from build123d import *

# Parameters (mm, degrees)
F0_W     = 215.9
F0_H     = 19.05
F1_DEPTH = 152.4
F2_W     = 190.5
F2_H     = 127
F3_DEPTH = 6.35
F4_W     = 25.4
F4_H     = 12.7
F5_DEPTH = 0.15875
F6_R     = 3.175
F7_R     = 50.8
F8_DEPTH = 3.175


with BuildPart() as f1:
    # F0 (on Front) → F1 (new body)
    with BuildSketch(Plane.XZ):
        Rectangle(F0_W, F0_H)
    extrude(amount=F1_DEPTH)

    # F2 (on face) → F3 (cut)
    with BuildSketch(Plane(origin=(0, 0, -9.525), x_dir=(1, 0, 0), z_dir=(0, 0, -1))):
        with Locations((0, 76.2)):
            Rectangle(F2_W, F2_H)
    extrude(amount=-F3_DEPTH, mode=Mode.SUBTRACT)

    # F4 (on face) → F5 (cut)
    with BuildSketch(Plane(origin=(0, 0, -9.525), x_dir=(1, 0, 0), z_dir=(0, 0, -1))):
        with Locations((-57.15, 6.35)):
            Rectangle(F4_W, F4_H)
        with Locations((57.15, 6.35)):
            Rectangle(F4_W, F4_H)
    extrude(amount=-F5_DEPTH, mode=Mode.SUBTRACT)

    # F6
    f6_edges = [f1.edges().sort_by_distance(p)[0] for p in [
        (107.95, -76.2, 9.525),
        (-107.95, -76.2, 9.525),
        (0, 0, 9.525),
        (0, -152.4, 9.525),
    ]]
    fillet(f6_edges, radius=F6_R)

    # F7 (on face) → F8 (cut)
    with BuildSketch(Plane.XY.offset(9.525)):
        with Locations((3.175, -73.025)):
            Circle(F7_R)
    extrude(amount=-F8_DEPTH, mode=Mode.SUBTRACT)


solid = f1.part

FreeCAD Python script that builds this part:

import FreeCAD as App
import Part
import Sketcher

V = App.Vector
Q = App.Units.Quantity


def edges_at(feature, points):
    """Names of the edges that pass closest to the given points."""
    edges = feature.Shape.Edges
    near = lambda p: min(range(len(edges)), key=lambda i: edges[i].distToShape(Part.Vertex(*p))[0])
    return sorted({f"Edge{near(p) + 1}" for p in points})

doc = App.newDocument("Part")
body = doc.addObject("PartDesign::Body", "Body")

# Sketch on XZ plane
sketch1 = body.newObject("Sketcher::SketchObject", "Sketch")
sketch1.AttachmentSupport = (doc.getObject("XZ_Plane"), [""])
sketch1.MapMode = "FlatFace"
sketch1.addGeometry([
    Part.LineSegment(V(-108, 10, 0), V(-108, -10, 0)),
    Part.LineSegment(V(-108, -10, 0), V(108, -10, 0)),
    Part.LineSegment(V(108, -10, 0), V(108, 10, 0)),
    Part.LineSegment(V(108, 10, 0), V(-108, 10, 0)),
], False)
sketch1.addConstraint([
    Sketcher.Constraint("Coincident", 0, 2, 1, 1),
    Sketcher.Constraint("Coincident", 1, 2, 2, 1),
    Sketcher.Constraint("Coincident", 2, 2, 3, 1),
    Sketcher.Constraint("Coincident", 3, 2, 0, 1),
    Sketcher.Constraint("Vertical", 0),
    Sketcher.Constraint("Horizontal", 1),
    Sketcher.Constraint("Vertical", 2),
    Sketcher.Constraint("Horizontal", 3),
    Sketcher.Constraint("Symmetric", 0, 2, 2, 2, -1, 1),
    Sketcher.Constraint("DistanceX", 1, 1, 1, 2, Q("8.5 in")),
    Sketcher.Constraint("DistanceY", 0, 2, 0, 1, Q("0.75 in")),
])
pad1 = body.newObject("PartDesign::Pad", "Pad")
pad1.Profile = sketch1
pad1.Length = Q("6 in")

# Sketch on XY plane
sketch2 = body.newObject("Sketcher::SketchObject", "Sketch001")
sketch2.AttachmentSupport = (doc.getObject("XY_Plane"), [""])
sketch2.MapMode = "FlatFace"
sketch2.AttachmentOffset = App.Placement(V(0, 0, -0.375 * 25.4), App.Rotation())
sketch2.addGeometry([
    Part.LineSegment(V(-95, -140, 0), V(-95, -13, 0)),
    Part.LineSegment(V(-95, -13, 0), V(95, -13, 0)),
    Part.LineSegment(V(95, -13, 0), V(95, -140, 0)),
    Part.LineSegment(V(95, -140, 0), V(-95, -140, 0)),
], False)
sketch2.addConstraint([
    Sketcher.Constraint("Coincident", 0, 2, 1, 1),
    Sketcher.Constraint("Coincident", 1, 2, 2, 1),
    Sketcher.Constraint("Coincident", 2, 2, 3, 1),
    Sketcher.Constraint("Coincident", 3, 2, 0, 1),
    Sketcher.Constraint("Vertical", 0),
    Sketcher.Constraint("Horizontal", 1),
    Sketcher.Constraint("Vertical", 2),
    Sketcher.Constraint("Horizontal", 3),
    Sketcher.Constraint("DistanceY", 0, 1, 0, 2, Q("5 in")),
    Sketcher.Constraint("DistanceX", 1, 1, 1, 2, Q("7.5 in")),
    Sketcher.Constraint("DistanceY", 0, 2, -1, 1, Q("0.5 in")),
    Sketcher.Constraint("DistanceX", 0, 2, -1, 1, Q("3.75 in")),
])
pocket1 = body.newObject("PartDesign::Pocket", "Pocket")
pocket1.Profile = sketch2
pocket1.Length = Q("0.25 in")
pocket1.Reversed = True

# Sketch on XY plane
sketch3 = body.newObject("Sketcher::SketchObject", "Sketch002")
sketch3.AttachmentSupport = (doc.getObject("XY_Plane"), [""])
sketch3.MapMode = "FlatFace"
sketch3.AttachmentOffset = App.Placement(V(0, 0, -0.375 * 25.4), App.Rotation())
sketch3.addGeometry([
    Part.LineSegment(V(-70, -13, 0), V(-70, 0, 0)),  # 0
    Part.LineSegment(V(-70, 0, 0), V(-44, 0, 0)),  # 1
    Part.LineSegment(V(-44, 0, 0), V(-44, -13, 0)),  # 2
    Part.LineSegment(V(-44, -13, 0), V(-70, -13, 0)),  # 3
    Part.LineSegment(V(44, -13, 0), V(44, 0, 0)),  # 4
    Part.LineSegment(V(44, 0, 0), V(70, 0, 0)),  # 5
    Part.LineSegment(V(70, 0, 0), V(70, -13, 0)),  # 6
    Part.LineSegment(V(70, -13, 0), V(44, -13, 0)),  # 7
], False)
sketch3.addConstraint([
    Sketcher.Constraint("Coincident", 0, 2, 1, 1),
    Sketcher.Constraint("Coincident", 1, 2, 2, 1),
    Sketcher.Constraint("Coincident", 2, 2, 3, 1),
    Sketcher.Constraint("Coincident", 3, 2, 0, 1),
    Sketcher.Constraint("Coincident", 4, 2, 5, 1),
    Sketcher.Constraint("Coincident", 5, 2, 6, 1),
    Sketcher.Constraint("Coincident", 6, 2, 7, 1),
    Sketcher.Constraint("Coincident", 7, 2, 4, 1),
    Sketcher.Constraint("Vertical", 0),
    Sketcher.Constraint("Horizontal", 1),
    Sketcher.Constraint("Vertical", 2),
    Sketcher.Constraint("Horizontal", 3),
    Sketcher.Constraint("Vertical", 4),
    Sketcher.Constraint("Horizontal", 5),
    Sketcher.Constraint("Vertical", 6),
    Sketcher.Constraint("Horizontal", 7),
    Sketcher.Constraint("Symmetric", 1, 2, 4, 2, -1, 1),
    Sketcher.Constraint("Symmetric", 0, 2, 5, 2, -2),
    Sketcher.Constraint("Horizontal", 3, 2, 6, 2),
    Sketcher.Constraint("DistanceX", 1, 1, 1, 2, Q("1 in")),
    Sketcher.Constraint("DistanceY", 0, 1, 0, 2, Q("0.5 in")),
    Sketcher.Constraint("DistanceX", 1, 2, 4, 2, Q("3.5 in")),
])
pocket2 = body.newObject("PartDesign::Pocket", "Pocket001")
pocket2.Profile = sketch3
pocket2.Length = 0.15875
pocket2.Reversed = True
doc.recompute()

fillet = body.newObject("PartDesign::Fillet", "Fillet")
fillet.Base = (pocket2, edges_at(pocket2, [
    (107.95, -76.2, 9.525),
    (-107.95, -76.2, 9.525),
    (0, 0, 9.525),
    (0, -152.4, 9.525),
]))
fillet.Radius = Q("0.125 in")

# Sketch on XY plane
sketch4 = body.newObject("Sketcher::SketchObject", "Sketch003")
sketch4.AttachmentSupport = (doc.getObject("XY_Plane"), [""])
sketch4.MapMode = "FlatFace"
sketch4.AttachmentOffset = App.Placement(V(0, 0, 0.375 * 25.4), App.Rotation())
sketch4.addGeometry(Part.Circle(V(3, -73, 0), V(0, 0, 1), 51), False)
sketch4.addConstraint([
    Sketcher.Constraint("Diameter", 0, Q("4 in")),
    Sketcher.Constraint("DistanceX", -1, 1, 0, 3, Q("0.125 in")),
    Sketcher.Constraint("DistanceY", 0, 3, -1, 1, Q("2.875 in")),
])
pocket3 = body.newObject("PartDesign::Pocket", "Pocket002")
pocket3.Profile = sketch4
pocket3.Length = Q("0.125 in")

doc.recompute()
